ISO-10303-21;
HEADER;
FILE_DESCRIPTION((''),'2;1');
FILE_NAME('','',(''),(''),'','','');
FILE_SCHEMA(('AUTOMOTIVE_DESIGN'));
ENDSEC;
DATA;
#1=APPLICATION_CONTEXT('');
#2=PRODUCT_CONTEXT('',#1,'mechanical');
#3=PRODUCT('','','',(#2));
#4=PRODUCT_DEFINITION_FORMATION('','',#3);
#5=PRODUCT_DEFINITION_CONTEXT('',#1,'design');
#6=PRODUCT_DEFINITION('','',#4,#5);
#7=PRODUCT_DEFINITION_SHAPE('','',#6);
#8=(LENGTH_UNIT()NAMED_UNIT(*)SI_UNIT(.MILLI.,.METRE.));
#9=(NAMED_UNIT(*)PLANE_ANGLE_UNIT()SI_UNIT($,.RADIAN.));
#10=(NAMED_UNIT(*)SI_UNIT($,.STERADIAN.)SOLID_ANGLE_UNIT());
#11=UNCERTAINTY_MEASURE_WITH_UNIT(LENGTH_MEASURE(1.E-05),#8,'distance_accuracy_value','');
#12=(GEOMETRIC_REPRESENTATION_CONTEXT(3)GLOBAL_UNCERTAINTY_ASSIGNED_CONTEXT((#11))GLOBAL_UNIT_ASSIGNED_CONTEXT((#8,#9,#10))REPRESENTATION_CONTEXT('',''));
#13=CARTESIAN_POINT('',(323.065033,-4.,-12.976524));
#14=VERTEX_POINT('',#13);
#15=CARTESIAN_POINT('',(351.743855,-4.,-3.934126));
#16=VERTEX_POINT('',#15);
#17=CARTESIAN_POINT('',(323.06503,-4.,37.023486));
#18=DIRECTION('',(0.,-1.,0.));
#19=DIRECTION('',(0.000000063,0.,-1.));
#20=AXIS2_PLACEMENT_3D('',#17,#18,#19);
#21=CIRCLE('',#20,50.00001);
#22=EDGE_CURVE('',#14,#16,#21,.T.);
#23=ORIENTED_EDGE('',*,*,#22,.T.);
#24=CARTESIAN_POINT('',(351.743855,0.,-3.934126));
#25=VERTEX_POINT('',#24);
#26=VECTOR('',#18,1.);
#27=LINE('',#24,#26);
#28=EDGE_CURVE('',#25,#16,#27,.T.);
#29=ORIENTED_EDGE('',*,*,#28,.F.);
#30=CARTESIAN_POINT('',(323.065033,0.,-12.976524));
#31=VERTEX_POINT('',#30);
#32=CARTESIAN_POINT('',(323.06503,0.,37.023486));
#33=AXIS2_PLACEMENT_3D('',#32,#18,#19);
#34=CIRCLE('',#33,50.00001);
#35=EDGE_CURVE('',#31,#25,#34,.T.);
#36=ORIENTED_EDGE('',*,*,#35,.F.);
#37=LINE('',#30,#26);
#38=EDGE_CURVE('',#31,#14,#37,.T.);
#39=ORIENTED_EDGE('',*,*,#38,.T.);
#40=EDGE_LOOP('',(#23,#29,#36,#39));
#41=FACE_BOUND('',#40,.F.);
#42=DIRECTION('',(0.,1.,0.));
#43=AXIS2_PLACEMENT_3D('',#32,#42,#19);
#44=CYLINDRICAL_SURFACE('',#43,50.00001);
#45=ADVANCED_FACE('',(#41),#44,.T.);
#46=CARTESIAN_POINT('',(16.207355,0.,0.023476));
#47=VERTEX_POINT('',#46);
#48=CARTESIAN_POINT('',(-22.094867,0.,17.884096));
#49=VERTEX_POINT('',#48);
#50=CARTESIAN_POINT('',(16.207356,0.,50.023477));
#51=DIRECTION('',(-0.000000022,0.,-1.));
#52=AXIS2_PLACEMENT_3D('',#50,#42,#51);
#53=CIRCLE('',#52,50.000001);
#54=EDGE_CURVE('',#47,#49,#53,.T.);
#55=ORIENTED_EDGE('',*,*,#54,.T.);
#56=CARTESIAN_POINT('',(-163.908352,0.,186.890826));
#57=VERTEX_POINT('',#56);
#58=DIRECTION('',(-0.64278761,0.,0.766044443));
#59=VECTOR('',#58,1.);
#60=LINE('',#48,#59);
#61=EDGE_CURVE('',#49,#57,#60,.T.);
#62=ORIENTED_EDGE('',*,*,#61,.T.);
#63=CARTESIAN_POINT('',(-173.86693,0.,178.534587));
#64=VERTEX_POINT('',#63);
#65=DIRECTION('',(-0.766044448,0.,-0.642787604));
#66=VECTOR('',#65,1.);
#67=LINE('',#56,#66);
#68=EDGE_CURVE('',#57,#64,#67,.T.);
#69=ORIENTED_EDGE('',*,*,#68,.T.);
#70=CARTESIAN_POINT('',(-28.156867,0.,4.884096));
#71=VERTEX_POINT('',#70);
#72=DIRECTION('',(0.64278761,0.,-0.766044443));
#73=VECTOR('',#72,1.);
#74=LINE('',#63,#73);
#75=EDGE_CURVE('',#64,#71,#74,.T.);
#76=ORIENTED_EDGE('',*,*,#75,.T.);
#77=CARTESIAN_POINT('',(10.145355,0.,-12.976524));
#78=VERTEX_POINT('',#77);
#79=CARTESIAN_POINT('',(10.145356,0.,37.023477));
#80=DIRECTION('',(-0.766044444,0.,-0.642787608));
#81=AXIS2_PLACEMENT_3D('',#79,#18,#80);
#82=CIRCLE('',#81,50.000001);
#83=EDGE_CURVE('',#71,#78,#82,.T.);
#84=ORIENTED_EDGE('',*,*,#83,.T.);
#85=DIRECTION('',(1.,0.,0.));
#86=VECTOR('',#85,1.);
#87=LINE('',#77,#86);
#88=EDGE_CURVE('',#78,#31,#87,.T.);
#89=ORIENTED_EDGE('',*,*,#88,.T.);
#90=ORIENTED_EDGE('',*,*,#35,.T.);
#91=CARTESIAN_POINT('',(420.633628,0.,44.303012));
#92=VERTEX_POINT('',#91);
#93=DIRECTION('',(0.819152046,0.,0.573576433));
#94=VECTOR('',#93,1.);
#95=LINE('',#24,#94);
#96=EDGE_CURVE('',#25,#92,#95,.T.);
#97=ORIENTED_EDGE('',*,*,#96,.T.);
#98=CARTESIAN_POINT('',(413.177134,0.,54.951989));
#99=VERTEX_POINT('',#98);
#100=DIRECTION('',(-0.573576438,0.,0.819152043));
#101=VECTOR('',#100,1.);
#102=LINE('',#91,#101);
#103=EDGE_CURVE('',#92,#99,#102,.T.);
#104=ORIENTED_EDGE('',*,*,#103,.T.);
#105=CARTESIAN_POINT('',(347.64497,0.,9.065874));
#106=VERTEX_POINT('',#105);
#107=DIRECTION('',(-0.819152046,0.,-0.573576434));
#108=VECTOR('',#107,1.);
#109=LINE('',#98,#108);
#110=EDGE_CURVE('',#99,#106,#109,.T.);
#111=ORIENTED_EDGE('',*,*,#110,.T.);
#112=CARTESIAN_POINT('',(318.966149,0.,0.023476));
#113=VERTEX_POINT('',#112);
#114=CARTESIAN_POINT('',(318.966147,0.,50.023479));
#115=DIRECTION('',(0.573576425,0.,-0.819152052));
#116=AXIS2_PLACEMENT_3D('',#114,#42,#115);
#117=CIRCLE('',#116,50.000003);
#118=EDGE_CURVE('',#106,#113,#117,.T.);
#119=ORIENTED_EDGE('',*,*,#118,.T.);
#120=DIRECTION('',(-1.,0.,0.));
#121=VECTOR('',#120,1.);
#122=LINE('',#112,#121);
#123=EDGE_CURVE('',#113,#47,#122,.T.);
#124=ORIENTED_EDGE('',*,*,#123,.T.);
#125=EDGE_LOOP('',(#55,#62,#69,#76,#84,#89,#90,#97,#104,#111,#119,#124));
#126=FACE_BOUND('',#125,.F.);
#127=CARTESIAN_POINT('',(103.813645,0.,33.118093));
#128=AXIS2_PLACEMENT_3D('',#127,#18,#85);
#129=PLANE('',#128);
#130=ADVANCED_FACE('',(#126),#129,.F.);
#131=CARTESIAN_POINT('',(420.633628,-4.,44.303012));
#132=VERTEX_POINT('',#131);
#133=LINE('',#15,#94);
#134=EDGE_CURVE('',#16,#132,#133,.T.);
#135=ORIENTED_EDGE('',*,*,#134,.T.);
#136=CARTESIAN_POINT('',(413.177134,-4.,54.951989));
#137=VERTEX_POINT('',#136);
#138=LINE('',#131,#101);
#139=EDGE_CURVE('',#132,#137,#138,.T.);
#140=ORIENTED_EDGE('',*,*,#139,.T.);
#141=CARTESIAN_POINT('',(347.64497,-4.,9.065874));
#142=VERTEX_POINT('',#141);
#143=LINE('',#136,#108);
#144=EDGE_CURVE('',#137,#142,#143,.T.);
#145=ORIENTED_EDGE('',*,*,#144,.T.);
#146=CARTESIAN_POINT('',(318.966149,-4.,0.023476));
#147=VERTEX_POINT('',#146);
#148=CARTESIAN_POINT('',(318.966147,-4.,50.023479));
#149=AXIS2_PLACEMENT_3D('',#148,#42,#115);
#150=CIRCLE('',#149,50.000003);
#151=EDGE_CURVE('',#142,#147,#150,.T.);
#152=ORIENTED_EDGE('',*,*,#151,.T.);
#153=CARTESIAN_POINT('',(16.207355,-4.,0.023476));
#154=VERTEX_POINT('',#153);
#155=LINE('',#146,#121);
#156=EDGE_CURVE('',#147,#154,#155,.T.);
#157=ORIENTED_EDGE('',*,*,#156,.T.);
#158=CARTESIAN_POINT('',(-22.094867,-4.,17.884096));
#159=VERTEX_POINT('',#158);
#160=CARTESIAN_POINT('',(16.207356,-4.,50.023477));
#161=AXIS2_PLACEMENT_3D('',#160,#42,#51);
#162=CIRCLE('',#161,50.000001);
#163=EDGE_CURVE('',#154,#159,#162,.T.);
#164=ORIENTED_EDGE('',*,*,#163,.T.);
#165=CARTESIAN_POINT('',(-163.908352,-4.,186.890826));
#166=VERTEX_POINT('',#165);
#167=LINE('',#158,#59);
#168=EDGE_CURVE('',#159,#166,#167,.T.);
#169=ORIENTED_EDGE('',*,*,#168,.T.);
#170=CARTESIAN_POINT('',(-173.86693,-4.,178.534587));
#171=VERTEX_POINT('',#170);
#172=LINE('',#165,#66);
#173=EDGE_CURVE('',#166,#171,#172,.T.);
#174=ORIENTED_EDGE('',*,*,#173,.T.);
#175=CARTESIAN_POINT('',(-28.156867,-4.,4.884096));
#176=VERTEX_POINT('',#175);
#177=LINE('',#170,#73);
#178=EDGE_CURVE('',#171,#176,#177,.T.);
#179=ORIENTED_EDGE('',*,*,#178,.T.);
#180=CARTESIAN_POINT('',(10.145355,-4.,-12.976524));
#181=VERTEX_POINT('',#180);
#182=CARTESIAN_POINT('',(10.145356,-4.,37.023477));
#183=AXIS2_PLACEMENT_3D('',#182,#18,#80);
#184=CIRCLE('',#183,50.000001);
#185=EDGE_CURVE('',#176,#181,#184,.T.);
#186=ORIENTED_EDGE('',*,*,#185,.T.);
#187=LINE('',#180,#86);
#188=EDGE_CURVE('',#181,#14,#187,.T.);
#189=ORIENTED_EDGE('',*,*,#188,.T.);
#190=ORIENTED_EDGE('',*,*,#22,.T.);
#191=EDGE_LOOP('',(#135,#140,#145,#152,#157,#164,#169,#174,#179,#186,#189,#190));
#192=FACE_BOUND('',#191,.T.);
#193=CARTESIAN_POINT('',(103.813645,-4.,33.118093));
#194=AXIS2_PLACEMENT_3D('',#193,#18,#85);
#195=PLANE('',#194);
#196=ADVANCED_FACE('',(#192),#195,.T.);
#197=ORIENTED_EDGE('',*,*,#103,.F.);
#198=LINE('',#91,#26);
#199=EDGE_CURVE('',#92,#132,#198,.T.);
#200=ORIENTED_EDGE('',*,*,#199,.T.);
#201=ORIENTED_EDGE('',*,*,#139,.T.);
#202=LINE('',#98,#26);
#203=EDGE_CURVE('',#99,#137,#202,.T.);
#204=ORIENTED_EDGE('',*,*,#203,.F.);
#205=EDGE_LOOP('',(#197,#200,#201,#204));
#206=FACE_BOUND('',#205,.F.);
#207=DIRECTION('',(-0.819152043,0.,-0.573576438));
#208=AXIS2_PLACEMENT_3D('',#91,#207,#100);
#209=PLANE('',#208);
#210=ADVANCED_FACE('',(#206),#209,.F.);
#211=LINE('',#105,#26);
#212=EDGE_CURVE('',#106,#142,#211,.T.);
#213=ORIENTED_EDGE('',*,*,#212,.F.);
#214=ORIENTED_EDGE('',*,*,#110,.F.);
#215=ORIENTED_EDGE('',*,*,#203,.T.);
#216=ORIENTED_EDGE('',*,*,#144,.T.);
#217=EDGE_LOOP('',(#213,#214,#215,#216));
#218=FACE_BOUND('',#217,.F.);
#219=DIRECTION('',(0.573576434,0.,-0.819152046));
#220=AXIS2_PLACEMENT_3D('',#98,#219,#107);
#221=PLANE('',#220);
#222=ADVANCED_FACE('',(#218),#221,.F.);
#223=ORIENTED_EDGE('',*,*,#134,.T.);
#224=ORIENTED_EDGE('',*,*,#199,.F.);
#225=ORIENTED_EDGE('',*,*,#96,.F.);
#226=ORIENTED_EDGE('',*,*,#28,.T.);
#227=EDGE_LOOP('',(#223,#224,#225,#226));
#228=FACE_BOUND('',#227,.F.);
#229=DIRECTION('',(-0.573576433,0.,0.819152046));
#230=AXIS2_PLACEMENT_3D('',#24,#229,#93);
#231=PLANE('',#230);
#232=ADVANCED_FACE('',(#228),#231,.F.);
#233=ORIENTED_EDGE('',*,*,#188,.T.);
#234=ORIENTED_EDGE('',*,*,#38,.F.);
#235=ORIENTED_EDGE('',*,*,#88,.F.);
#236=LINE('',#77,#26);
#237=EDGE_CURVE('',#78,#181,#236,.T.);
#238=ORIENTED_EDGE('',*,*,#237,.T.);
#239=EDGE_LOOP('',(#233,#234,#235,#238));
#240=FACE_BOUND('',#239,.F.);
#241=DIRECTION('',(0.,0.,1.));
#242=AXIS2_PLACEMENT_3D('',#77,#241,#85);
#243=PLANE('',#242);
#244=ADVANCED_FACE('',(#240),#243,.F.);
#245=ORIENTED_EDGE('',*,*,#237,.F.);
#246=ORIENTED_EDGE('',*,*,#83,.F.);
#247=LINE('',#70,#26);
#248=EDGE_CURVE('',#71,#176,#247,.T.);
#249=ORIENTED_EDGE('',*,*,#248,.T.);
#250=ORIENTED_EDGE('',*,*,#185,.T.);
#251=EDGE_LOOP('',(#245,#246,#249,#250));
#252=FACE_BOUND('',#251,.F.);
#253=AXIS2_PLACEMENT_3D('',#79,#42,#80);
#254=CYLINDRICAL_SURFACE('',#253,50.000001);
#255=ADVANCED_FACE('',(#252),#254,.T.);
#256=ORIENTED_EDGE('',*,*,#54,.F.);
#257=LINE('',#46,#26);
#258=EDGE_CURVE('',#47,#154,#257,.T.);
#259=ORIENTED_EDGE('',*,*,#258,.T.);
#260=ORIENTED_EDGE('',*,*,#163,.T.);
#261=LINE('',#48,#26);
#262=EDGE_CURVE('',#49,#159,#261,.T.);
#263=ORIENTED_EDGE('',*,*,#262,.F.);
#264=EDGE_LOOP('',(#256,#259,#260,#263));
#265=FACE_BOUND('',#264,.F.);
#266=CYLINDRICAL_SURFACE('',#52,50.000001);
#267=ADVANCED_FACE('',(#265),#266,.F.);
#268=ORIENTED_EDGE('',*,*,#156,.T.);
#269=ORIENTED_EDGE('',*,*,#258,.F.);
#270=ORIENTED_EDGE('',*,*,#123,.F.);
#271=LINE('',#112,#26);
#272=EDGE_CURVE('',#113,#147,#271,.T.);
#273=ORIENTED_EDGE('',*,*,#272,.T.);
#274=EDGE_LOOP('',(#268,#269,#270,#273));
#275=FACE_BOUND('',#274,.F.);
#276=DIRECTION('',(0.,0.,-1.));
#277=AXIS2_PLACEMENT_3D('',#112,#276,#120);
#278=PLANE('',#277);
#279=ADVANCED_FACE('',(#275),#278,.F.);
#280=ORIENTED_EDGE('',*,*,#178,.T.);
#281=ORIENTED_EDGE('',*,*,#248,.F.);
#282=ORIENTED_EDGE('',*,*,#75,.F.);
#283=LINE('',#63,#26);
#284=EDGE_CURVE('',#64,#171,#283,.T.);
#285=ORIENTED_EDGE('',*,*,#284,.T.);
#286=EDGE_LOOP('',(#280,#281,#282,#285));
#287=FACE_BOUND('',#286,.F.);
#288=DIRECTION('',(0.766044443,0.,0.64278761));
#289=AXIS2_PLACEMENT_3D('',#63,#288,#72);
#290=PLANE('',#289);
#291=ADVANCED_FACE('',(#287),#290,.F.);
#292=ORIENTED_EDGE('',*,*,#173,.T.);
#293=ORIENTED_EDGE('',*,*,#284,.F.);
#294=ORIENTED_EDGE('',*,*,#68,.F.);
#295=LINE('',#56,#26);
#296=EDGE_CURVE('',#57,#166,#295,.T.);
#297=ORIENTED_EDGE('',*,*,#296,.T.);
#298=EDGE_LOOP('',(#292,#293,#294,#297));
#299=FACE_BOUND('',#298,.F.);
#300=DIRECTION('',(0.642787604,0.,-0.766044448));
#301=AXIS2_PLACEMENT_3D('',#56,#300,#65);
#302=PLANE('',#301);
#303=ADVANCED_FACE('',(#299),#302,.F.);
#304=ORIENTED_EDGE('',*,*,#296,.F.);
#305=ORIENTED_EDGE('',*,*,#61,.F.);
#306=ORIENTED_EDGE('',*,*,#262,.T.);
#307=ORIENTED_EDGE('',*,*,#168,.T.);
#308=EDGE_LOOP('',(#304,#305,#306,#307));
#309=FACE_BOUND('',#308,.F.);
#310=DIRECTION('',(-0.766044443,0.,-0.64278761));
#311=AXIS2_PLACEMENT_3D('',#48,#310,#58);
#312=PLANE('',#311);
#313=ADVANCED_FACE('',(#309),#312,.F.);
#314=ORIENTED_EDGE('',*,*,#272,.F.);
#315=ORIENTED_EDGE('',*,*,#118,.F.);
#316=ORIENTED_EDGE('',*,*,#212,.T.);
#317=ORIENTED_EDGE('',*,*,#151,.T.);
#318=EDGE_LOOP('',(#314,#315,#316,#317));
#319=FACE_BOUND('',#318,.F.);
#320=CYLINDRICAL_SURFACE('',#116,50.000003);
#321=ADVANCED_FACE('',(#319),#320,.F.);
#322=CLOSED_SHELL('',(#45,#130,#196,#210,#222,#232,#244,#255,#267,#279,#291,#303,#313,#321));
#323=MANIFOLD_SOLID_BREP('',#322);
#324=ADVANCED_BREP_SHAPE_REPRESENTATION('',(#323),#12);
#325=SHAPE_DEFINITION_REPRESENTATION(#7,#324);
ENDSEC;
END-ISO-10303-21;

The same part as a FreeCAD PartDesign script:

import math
import FreeCAD as App
import Part
import Sketcher

V = App.Vector
Q = App.Units.Quantity

doc = App.newDocument("Part")
body = doc.addObject("PartDesign::Body", "Body")

# Sketch on XZ plane
sketch1 = body.newObject("Sketcher::SketchObject", "Sketch")
sketch1.AttachmentSupport = (doc.getObject("XZ_Plane"), [""])
sketch1.MapMode = "FlatFace"
sketch1.addGeometry(Part.ArcOfCircle(Part.Circle(V(10.145356, 37.023477, 0), V(0, 0, 1), 50.000001), math.radians(-140), math.radians(-90.000001)), False)
sketch1.addGeometry(Part.LineSegment(V(10.145355, -12.976524, 0), V(323.065033, -12.976524, 0)), False)
sketch1.addGeometry(Part.ArcOfCircle(Part.Circle(V(323.06503, 37.023486, 0), V(0, 0, 1), 50.00001), math.radians(-89.999996), math.radians(-55.000003)), False)
sketch1.addGeometry(Part.LineSegment(V(351.743855, -3.934126, 0), V(420.633628, 44.303012, 0)), False)
sketch1.addGeometry(Part.LineSegment(V(420.633628, 44.303012, 0), V(413.177134, 54.951989, 0)), False)
sketch1.addGeometry(Part.LineSegment(V(413.177134, 54.951989, 0), V(347.64497, 9.065874, 0)), False)
sketch1.addGeometry(Part.ArcOfCircle(Part.Circle(V(318.966147, 50.023479, 0), V(0, 0, 1), 50.000003), math.radians(-89.999997), math.radians(-55.000001)), False)
sketch1.addGeometry(Part.LineSegment(V(318.966149, 0.023476, 0), V(16.207355, 0.023476, 0)), False)
sketch1.addGeometry(Part.ArcOfCircle(Part.Circle(V(16.207356, 50.023477, 0), V(0, 0, 1), 50.000001), math.radians(-140), math.radians(-90.000001)), False)
sketch1.addGeometry(Part.LineSegment(V(-22.094867, 17.884096, 0), V(-163.908352, 186.890826, 0)), False)
sketch1.addGeometry(Part.LineSegment(V(-163.908352, 186.890826, 0), V(-173.86693, 178.534587, 0)), False)
sketch1.addGeometry(Part.LineSegment(V(-173.86693, 178.534587, 0), V(-28.156867, 4.884096, 0)), False)
sketch1.addConstraint(Sketcher.Constraint("Tangent", 0, 2, 1, 1))
sketch1.addConstraint(Sketcher.Constraint("Tangent", 1, 2, 2, 1))
sketch1.addConstraint(Sketcher.Constraint("Tangent", 2, 2, 3, 1))
sketch1.addConstraint(Sketcher.Constraint("Coincident", 3, 2, 4, 1))
sketch1.addConstraint(Sketcher.Constraint("Coincident", 4, 2, 5, 1))
sketch1.addConstraint(Sketcher.Constraint("Tangent", 5, 2, 6, 2))
sketch1.addConstraint(Sketcher.Constraint("Tangent", 6, 1, 7, 1))
sketch1.addConstraint(Sketcher.Constraint("Tangent", 7, 2, 8, 2))
sketch1.addConstraint(Sketcher.Constraint("Tangent", 8, 1, 9, 1))
sketch1.addConstraint(Sketcher.Constraint("Coincident", 9, 2, 10, 1))
sketch1.addConstraint(Sketcher.Constraint("Coincident", 10, 2, 11, 1))
sketch1.addConstraint(Sketcher.Constraint("Tangent", 11, 2, 0, 1))
sketch1.addConstraint(Sketcher.Constraint("Horizontal", 1))
sketch1.addConstraint(Sketcher.Constraint("Horizontal", 7))
sketch1.addConstraint(Sketcher.Constraint("Equal", 0, 8))
sketch1.addConstraint(Sketcher.Constraint("Perpendicular", 3, 4))
sketch1.addConstraint(Sketcher.Constraint("Perpendicular", 4, 5))
sketch1.addConstraint(Sketcher.Constraint("Perpendicular", 9, 10))
sketch1.addConstraint(Sketcher.Constraint("Perpendicular", 10, 11))
sketch1.addConstraint(Sketcher.Constraint("Equal", 4, 10))
sketch1.addConstraint(Sketcher.Constraint("Radius", 0, 50.000001))
sketch1.addConstraint(Sketcher.Constraint("Angle", 3, Q("35 deg")))
sketch1.addConstraint(Sketcher.Constraint("Angle", 9, Q("130 deg")))
sketch1.addConstraint(Sketcher.Constraint("Distance", 4, 13.000001))
sketch1.addConstraint(Sketcher.Constraint("Distance", 5, 80.0))
sketch1.addConstraint(Sketcher.Constraint("DistanceY", 0, 3, 8, 3, 13.0))
sketch1.addConstraint(Sketcher.Constraint("DistanceY", 2, 2, 5, 2, 13.0))
sketch1.addConstraint(Sketcher.Constraint("Radius", 2, 50.00001))
sketch1.addConstraint(Sketcher.Constraint("DistanceX", 1, 1, 1, 2, 312.919678))
sketch1.addConstraint(Sketcher.Constraint("DistanceX", -1, 1, 2, 3, 323.06503))
sketch1.addConstraint(Sketcher.Constraint("DistanceY", -1, 1, 6, 3, 50.023479))
sketch1.addConstraint(Sketcher.Constraint("DistanceX", 9, 2, -1, 1, 163.908352))
pad1 = body.newObject("PartDesign::Pad", "Pad")
pad1.Profile = sketch1
pad1.Length = 4

doc.recompute()
